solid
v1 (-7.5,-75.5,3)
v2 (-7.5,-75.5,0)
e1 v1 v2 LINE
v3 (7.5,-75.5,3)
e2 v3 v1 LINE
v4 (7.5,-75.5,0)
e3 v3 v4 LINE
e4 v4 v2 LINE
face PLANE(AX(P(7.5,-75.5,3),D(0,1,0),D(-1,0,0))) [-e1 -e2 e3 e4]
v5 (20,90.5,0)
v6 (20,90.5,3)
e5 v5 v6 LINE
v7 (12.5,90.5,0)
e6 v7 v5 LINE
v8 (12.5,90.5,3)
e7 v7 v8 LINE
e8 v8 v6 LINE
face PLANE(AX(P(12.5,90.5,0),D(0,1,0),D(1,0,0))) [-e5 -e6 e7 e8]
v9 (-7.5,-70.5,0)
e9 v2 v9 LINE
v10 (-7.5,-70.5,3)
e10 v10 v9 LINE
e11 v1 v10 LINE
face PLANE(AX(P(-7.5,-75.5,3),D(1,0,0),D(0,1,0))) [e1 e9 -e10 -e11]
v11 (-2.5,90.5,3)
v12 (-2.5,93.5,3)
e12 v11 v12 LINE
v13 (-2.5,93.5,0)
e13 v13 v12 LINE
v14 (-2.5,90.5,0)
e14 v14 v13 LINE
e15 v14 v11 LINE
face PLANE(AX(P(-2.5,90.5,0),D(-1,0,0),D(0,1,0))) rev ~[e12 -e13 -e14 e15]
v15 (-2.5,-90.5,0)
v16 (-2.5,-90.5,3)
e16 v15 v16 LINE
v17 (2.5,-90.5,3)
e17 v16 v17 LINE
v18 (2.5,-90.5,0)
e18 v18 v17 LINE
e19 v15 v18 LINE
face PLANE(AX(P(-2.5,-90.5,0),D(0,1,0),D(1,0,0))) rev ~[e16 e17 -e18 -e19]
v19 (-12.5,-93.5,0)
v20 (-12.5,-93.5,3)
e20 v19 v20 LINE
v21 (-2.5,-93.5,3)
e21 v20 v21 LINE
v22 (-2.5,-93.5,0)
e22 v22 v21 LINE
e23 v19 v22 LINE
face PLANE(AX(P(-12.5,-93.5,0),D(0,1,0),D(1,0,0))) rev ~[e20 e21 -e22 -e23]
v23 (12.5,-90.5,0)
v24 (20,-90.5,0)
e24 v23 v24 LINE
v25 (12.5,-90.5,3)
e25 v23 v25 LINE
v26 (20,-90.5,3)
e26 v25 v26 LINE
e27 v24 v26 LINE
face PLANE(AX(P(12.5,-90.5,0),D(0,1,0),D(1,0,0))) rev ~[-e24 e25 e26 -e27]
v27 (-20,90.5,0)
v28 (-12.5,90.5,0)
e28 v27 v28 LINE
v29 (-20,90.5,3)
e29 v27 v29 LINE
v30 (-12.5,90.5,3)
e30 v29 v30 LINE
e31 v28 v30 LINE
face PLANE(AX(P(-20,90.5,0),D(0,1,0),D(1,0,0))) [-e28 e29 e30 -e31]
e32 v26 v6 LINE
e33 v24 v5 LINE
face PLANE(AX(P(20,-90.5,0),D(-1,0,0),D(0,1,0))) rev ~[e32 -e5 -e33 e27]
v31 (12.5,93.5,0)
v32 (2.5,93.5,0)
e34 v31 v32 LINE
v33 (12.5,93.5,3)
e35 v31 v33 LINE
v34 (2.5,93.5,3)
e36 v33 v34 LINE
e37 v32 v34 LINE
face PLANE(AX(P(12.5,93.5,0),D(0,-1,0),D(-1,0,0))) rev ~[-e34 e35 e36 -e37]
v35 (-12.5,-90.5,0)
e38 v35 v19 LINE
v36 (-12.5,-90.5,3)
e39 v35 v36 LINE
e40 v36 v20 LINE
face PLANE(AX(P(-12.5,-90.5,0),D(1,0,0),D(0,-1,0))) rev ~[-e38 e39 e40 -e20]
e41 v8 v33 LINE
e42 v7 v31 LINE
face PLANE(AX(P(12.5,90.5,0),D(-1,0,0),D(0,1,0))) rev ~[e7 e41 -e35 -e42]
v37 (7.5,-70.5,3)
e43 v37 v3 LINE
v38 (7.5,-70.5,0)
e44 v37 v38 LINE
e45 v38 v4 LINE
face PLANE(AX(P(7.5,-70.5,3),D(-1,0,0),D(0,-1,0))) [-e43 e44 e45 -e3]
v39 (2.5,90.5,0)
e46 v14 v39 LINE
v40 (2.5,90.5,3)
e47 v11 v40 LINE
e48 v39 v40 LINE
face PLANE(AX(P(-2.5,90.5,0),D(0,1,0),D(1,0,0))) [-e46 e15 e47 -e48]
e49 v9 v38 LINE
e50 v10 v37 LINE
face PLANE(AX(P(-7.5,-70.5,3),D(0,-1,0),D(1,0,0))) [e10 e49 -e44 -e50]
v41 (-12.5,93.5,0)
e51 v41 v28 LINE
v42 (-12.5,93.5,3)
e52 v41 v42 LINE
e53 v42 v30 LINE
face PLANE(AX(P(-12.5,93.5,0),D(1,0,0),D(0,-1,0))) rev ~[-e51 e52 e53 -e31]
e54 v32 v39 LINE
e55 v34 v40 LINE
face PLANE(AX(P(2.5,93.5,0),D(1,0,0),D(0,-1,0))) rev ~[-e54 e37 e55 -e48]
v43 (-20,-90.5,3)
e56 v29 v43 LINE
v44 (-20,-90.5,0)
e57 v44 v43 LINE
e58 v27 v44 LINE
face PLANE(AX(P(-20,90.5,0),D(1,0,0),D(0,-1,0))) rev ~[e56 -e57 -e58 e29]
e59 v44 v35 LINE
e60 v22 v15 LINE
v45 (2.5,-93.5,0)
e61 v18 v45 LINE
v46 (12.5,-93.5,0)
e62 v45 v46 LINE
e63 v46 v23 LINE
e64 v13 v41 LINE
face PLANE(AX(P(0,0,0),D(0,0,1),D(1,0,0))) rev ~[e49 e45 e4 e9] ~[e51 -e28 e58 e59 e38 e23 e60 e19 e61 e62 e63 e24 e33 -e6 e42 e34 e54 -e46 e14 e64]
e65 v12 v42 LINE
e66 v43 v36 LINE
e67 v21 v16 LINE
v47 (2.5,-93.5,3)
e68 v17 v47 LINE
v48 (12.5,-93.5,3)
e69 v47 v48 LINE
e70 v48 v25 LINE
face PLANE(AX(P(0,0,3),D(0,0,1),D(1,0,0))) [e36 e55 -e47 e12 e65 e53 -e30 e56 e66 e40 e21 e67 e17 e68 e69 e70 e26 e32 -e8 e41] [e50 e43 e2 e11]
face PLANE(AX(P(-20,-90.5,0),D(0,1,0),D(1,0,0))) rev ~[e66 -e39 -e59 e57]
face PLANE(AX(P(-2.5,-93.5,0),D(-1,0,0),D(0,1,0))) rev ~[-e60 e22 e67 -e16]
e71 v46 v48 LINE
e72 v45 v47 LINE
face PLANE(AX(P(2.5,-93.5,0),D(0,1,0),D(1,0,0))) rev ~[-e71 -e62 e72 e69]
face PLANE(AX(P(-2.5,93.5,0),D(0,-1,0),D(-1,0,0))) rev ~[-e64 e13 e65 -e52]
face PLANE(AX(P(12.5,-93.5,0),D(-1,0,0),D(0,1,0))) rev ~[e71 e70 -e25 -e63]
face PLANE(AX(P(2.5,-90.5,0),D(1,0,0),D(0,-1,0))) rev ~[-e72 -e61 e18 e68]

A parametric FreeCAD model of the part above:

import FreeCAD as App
import Part
import Sketcher
from FreeCAD import Vector
Q = App.Units.Quantity


def add_polygon(sketch, points):
    """Adds a closed chain of lines whose ends are joined by coincident constraints."""
    first, n = sketch.GeometryCount, len(points)
    for a, b in zip(points, points[1:] + points[:1]):
        sketch.addGeometry(Part.LineSegment(App.Vector(*a, 0), App.Vector(*b, 0)), False)
    for i in range(n):
        sketch.addConstraint(Sketcher.Constraint("Coincident", first + i, 2, first + (i + 1) % n, 1))

doc = App.newDocument("Part")
body = doc.addObject("PartDesign::Body", "Body")

sketch1 = doc.addObject("Sketcher::SketchObject", "Sketch")
body.addObject(sketch1)
sketch1.AttachmentSupport = (doc.XY_Plane, [""])
sketch1.MapMode = "FlatFace"
add_polygon(sketch1, [(12.5, -90.5), (20, -90.5), (20, 90.5), (12.5, 90.5), (12.5, 93.5), (2.5, 93.5), (2.5, 90.5), (-2.5, 90.5), (-2.5, 93.5), (-12.5, 93.5), (-12.5, 90.5), (-20, 90.5), (-20, -90.5), (-12.5, -90.5), (-12.5, -93.5), (-2.5, -93.5), (-2.5, -90.5), (2.5, -90.5), (2.5, -93.5), (12.5, -93.5)])
sketch1.addConstraint(Sketcher.Constraint("Horizontal", 0))
sketch1.addConstraint(Sketcher.Constraint("Vertical", 1))
sketch1.addConstraint(Sketcher.Constraint("Horizontal", 2))
sketch1.addConstraint(Sketcher.Constraint("Vertical", 3))
sketch1.addConstraint(Sketcher.Constraint("Horizontal", 4))
sketch1.addConstraint(Sketcher.Constraint("Vertical", 5))
sketch1.addConstraint(Sketcher.Constraint("Horizontal", 6))
sketch1.addConstraint(Sketcher.Constraint("Vertical", 7))
sketch1.addConstraint(Sketcher.Constraint("Horizontal", 8))
sketch1.addConstraint(Sketcher.Constraint("Vertical", 9))
sketch1.addConstraint(Sketcher.Constraint("Horizontal", 10))
sketch1.addConstraint(Sketcher.Constraint("Vertical", 11))
sketch1.addConstraint(Sketcher.Constraint("Horizontal", 12))
sketch1.addConstraint(Sketcher.Constraint("Vertical", 13))
sketch1.addConstraint(Sketcher.Constraint("Horizontal", 14))
sketch1.addConstraint(Sketcher.Constraint("Vertical", 15))
sketch1.addConstraint(Sketcher.Constraint("Horizontal", 16))
sketch1.addConstraint(Sketcher.Constraint("Vertical", 17))
sketch1.addConstraint(Sketcher.Constraint("Horizontal", 18))
sketch1.addConstraint(Sketcher.Constraint("Vertical", 19))
sketch1.addConstraint(Sketcher.Constraint("Symmetric", 0, 2, 10, 2, -1, 1))
sketch1.addConstraint(Sketcher.Constraint("Symmetric", 2, 2, 12, 2, -1, 1))
sketch1.addConstraint(Sketcher.Constraint("Symmetric", 4, 2, 14, 2, -1, 1))
sketch1.addConstraint(Sketcher.Constraint("Symmetric", 6, 2, 16, 2, -1, 1))
sketch1.addConstraint(Sketcher.Constraint("Symmetric", 8, 2, 18, 2, -1, 1))
sketch1.addConstraint(Sketcher.Constraint("Symmetric", 4, 2, 7, 2, -2))
sketch1.addConstraint(Sketcher.Constraint("Symmetric", 2, 2, 9, 2, -2))
sketch1.addConstraint(Sketcher.Constraint("Horizontal", 2, 2, 5, 2))
sketch1.addConstraint(Sketcher.Constraint("DistanceX", 4, 2, 4, 1, Q("10 mm")))
sketch1.addConstraint(Sketcher.Constraint("DistanceX", 6, 2, 6, 1, Q("5 mm")))
sketch1.addConstraint(Sketcher.Constraint("DistanceY", 1, 1, 1, 2, Q("181 mm")))
sketch1.addConstraint(Sketcher.Constraint("DistanceY", 3, 1, 3, 2, Q("3 mm")))
sketch1.addConstraint(Sketcher.Constraint("DistanceX", 0, 1, 0, 2, Q("7.5 mm")))
pad1 = doc.addObject("PartDesign::Pad", "Pad")
body.addObject(pad1)
pad1.Profile = sketch1
pad1.Length = 3

sketch2 = doc.addObject("Sketcher::SketchObject", "Sketch001")
body.addObject(sketch2)
sketch2.AttachmentSupport = (doc.XY_Plane, [""])
sketch2.MapMode = "FlatFace"
sketch2.AttachmentOffset = App.Placement(Vector(0, 0, 3), App.Rotation())
add_polygon(sketch2, [(8, -70), (-8, -70), (-8, -76), (8, -76)])
sketch2.addConstraint(Sketcher.Constraint("Horizontal", 0))
sketch2.addConstraint(Sketcher.Constraint("Vertical", 1))
sketch2.addConstraint(Sketcher.Constraint("Horizontal", 2))
sketch2.addConstraint(Sketcher.Constraint("Vertical", 3))
sketch2.addConstraint(Sketcher.Constraint("DistanceX", 0, 2, 0, 1, Q("15 mm")))
sketch2.addConstraint(Sketcher.Constraint("DistanceY", 1, 2, 1, 1, Q("5 mm")))
sketch2.addConstraint(Sketcher.Constraint("DistanceX", 0, 2, -1, 1, Q("7.5 mm")))
sketch2.addConstraint(Sketcher.Constraint("DistanceY", 0, 2, -1, 1, Q("70.5 mm")))
pocket1 = doc.addObject("PartDesign::Pocket", "Pocket")
body.addObject(pocket1)
pocket1.Profile = sketch2
pocket1.Length = 10

doc.recompute()
